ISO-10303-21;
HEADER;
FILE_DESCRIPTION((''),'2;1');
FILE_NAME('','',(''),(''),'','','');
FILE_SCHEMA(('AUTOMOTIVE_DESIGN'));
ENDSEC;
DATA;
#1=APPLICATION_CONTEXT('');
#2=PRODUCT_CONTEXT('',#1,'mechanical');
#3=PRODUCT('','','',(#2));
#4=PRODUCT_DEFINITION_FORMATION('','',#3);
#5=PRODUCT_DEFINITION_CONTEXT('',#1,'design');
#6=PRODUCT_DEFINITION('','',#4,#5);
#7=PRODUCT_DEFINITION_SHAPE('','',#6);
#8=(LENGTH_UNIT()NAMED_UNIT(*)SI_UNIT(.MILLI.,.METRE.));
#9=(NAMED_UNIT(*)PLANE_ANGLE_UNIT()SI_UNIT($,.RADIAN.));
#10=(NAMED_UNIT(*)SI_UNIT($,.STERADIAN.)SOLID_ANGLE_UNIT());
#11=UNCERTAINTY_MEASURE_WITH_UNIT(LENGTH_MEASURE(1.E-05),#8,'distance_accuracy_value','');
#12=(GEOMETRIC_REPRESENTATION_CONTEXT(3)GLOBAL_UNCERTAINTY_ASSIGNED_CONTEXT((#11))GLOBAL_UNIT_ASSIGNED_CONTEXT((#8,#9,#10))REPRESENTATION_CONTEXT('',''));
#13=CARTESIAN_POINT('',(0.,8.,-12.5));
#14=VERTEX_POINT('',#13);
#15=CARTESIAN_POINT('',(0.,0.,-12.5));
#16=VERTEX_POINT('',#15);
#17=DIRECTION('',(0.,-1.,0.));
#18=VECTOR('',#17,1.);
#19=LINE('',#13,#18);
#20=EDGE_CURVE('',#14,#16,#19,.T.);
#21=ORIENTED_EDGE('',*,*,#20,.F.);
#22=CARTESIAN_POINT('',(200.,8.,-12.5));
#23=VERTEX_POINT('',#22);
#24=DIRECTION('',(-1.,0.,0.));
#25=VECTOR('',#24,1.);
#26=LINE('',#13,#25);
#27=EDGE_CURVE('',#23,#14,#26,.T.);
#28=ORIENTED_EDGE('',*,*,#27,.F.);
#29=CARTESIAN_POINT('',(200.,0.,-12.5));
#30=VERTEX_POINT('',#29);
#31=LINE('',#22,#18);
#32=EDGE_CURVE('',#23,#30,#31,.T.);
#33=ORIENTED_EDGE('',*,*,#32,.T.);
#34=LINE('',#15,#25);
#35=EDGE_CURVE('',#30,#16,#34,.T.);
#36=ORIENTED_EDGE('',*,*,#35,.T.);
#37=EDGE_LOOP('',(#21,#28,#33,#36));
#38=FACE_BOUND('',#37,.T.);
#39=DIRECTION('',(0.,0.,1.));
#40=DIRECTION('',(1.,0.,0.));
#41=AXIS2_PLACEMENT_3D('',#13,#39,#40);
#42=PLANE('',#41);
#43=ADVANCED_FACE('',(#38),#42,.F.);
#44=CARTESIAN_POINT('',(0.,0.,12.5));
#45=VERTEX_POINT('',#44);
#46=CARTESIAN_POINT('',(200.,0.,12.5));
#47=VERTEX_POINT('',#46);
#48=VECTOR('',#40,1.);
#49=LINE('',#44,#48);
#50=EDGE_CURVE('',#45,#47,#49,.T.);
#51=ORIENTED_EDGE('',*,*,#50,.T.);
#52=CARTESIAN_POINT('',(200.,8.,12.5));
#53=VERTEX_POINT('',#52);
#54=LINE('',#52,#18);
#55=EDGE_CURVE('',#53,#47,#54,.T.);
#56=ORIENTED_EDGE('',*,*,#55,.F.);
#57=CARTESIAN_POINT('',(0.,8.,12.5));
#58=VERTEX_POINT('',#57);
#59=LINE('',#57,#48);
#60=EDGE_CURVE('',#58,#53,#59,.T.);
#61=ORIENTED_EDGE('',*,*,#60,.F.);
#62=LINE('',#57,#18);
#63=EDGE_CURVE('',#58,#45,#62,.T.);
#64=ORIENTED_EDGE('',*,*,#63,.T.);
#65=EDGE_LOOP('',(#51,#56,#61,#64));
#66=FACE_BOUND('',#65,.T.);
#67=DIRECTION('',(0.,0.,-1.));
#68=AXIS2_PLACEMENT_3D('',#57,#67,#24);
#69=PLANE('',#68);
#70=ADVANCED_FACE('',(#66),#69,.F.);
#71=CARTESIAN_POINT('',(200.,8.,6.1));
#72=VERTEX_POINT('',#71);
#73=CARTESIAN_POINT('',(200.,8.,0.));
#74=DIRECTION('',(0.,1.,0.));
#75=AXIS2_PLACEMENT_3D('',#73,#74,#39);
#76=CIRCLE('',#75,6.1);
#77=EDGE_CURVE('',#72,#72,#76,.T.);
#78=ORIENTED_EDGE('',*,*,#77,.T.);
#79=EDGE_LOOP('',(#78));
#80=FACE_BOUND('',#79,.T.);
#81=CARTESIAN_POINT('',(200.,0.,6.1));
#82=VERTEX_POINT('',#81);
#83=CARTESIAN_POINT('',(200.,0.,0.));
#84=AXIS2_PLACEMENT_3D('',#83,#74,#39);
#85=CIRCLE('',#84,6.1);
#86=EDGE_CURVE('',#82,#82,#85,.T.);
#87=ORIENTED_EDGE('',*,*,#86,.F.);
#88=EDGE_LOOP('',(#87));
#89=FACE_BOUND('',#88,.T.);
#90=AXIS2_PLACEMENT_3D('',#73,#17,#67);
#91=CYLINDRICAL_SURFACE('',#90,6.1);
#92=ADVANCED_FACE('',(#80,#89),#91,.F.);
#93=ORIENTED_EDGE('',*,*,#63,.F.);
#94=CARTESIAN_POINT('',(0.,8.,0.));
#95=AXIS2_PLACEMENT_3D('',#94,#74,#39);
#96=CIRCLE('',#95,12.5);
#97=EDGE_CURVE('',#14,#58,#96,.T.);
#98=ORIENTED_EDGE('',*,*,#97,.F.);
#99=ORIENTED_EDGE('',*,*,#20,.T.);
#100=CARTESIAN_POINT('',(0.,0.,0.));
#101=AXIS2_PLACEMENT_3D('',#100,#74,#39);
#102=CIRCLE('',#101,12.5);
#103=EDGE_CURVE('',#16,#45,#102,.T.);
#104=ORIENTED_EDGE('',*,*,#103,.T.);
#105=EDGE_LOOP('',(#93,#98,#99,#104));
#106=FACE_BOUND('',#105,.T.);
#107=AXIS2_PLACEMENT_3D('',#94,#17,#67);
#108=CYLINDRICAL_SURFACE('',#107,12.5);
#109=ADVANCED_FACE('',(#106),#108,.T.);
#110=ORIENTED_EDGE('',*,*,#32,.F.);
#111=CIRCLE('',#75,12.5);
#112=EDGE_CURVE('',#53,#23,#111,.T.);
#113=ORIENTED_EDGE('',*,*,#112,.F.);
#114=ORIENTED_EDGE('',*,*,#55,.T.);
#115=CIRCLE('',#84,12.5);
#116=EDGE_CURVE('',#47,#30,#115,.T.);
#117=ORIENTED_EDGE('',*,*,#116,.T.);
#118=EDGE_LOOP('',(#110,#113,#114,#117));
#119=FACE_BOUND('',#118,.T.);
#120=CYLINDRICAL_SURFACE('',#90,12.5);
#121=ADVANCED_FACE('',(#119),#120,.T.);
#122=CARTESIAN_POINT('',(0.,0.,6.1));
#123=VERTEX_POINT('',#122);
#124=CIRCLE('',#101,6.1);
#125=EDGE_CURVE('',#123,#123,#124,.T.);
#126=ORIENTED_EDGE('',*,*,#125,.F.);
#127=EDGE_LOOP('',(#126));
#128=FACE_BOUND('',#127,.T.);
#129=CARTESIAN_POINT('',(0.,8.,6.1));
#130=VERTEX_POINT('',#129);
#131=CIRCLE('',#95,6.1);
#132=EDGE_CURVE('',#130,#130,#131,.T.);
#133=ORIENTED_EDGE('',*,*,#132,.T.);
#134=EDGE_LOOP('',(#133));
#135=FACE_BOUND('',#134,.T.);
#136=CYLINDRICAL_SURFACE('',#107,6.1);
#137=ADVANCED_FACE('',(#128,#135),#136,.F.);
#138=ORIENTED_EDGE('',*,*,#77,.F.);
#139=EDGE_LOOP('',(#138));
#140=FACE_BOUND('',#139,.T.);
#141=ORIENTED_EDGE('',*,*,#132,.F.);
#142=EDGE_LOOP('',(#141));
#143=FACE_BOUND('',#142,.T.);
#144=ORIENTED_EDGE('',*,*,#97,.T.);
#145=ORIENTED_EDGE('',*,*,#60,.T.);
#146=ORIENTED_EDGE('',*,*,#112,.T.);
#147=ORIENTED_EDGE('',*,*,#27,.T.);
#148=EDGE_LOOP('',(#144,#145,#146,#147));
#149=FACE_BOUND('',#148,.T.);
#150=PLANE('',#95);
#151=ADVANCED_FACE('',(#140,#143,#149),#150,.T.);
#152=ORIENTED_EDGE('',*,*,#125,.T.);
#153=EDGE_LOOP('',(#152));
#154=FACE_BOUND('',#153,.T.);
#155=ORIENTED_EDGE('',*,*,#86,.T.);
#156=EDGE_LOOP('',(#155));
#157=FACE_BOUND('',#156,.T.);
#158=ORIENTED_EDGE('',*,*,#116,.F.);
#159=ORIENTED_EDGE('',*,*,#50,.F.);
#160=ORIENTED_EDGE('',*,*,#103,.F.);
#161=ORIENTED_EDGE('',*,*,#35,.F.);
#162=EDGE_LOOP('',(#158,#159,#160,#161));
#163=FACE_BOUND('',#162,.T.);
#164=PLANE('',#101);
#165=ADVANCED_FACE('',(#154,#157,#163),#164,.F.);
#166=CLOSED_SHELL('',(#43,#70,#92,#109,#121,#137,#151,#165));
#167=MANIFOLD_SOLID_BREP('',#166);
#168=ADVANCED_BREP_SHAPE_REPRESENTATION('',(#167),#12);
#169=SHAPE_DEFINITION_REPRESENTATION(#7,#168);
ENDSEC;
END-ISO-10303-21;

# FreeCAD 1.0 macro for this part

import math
import FreeCAD as App
import Part
import Sketcher
from FreeCAD import Vector

doc = App.newDocument("Part")
body = doc.addObject("PartDesign::Body", "Body")

sketch1 = body.newObject("Sketcher::SketchObject", "Sketch")
sketch1.AttachmentSupport = (doc.getObject("XZ_Plane"), [""])
sketch1.MapMode = "FlatFace"
sketch1.addGeometry(Part.LineSegment(Vector(200, -12, 0), Vector(0, -12, 0)), False)
sketch1.addGeometry(Part.ArcOfCircle(Part.Circle(Vector(0, 0, 0), Vector(0, 0, 1), 12), math.radians(90), math.radians(270)), False)
sketch1.addGeometry(Part.LineSegment(Vector(0, 12, 0), Vector(200, 12, 0)), False)
sketch1.addGeometry(Part.ArcOfCircle(Part.Circle(Vector(200, 0, 0), Vector(0, 0, 1), 12), math.radians(-90), math.radians(90)), False)
sketch1.addGeometry(Part.Circle(Vector(200, 0, 0), Vector(0, 0, 1), 6), False)
sketch1.addGeometry(Part.Circle(Vector(0, 0, 0), Vector(0, 0, 1), 6), False)
sketch1.addConstraint(Sketcher.Constraint("Tangent", 0, 2, 1, 2))
sketch1.addConstraint(Sketcher.Constraint("Tangent", 1, 1, 2, 1))
sketch1.addConstraint(Sketcher.Constraint("Tangent", 2, 2, 3, 2))
sketch1.addConstraint(Sketcher.Constraint("Tangent", 3, 1, 0, 1))
sketch1.addConstraint(Sketcher.Constraint("Horizontal", 0))
sketch1.addConstraint(Sketcher.Constraint("Horizontal", 2))
sketch1.addConstraint(Sketcher.Constraint("Coincident", 1, 3, -1, 1))
sketch1.addConstraint(Sketcher.Constraint("Coincident", 5, 3, -1, 1))
sketch1.addConstraint(Sketcher.Constraint("Coincident", 4, 3, 3, 3))
sketch1.addConstraint(Sketcher.Constraint("Equal", 4, 5))
sketch1.addConstraint(Sketcher.Constraint("Diameter", 4, 12.2))
sketch1.addConstraint(Sketcher.Constraint("Radius", 1, 12.5))
sketch1.addConstraint(Sketcher.Constraint("DistanceX", 0, 2, 0, 1, 200.0))
pad1 = body.newObject("PartDesign::Pad", "Pad")
pad1.Profile = sketch1
pad1.Length = 8
pad1.Reversed = True

doc.recompute()
